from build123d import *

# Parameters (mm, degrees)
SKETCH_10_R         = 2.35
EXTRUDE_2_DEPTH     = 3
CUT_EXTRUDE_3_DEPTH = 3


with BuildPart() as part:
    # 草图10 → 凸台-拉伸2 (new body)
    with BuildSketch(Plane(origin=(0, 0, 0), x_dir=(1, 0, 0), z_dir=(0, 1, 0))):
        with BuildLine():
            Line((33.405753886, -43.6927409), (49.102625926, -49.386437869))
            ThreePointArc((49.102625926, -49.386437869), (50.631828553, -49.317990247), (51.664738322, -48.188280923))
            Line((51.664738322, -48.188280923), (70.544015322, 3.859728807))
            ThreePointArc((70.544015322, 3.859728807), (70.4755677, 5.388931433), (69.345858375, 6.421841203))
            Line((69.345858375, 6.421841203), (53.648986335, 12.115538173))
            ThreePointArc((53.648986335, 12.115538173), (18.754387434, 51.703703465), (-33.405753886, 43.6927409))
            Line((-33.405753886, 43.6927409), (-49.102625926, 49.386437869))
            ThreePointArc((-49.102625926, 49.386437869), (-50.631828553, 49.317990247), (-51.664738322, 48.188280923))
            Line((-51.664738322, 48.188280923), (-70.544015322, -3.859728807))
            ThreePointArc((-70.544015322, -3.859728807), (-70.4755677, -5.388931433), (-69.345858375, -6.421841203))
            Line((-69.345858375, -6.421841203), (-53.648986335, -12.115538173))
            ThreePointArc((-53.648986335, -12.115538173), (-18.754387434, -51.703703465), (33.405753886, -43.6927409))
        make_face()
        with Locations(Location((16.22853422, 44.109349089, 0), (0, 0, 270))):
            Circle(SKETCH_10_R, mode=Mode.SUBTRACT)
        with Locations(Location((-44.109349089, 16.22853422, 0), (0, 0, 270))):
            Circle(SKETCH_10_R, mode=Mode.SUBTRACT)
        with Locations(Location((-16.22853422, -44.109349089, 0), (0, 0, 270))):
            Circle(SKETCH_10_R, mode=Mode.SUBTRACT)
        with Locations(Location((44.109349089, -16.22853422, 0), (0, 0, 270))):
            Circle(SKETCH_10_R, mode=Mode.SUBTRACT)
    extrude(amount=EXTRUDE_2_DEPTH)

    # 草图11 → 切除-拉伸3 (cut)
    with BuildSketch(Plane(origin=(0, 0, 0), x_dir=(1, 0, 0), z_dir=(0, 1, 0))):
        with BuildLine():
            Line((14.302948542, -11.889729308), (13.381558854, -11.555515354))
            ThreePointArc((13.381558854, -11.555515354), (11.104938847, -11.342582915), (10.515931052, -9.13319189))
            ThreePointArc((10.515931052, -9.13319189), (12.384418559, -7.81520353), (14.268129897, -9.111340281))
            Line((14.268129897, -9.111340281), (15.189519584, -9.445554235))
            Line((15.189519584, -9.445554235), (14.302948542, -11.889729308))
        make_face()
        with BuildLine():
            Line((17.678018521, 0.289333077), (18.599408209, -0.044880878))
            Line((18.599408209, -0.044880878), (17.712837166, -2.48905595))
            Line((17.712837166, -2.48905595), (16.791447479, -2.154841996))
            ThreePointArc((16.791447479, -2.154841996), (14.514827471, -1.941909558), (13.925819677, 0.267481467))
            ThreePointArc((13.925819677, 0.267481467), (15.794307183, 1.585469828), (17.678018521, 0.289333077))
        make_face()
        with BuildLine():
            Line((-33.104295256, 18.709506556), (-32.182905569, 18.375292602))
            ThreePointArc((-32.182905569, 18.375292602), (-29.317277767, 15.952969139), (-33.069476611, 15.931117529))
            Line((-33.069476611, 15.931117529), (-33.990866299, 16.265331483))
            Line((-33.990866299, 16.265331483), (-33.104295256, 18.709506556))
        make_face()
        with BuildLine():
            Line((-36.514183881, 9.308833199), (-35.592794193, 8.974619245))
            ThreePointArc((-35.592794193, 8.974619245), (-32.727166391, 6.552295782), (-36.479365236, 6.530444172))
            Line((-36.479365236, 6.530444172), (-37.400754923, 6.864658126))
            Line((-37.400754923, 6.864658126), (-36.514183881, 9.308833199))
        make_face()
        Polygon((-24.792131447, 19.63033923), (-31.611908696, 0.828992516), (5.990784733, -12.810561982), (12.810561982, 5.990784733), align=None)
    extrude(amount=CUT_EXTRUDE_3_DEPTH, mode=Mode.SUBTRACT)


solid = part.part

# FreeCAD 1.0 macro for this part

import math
import FreeCAD as App
import Part
import Sketcher

V = App.Vector

doc = App.newDocument("Part")
params = doc.addObject("Spreadsheet::Sheet", "Params")
for row, (alias, value) in enumerate([
    ("sketch1_radius", "2 mm"),
    ("sketch1_radius2", "55 mm"),
    ("sketch1_diameter", "4.7 mm"),
    ("pad1_length", "3 mm"),
    ("sketch2_radius", "2 mm"),
    ("sketch2_length", "20 mm"),
    ("sketch2_length2", "40 mm"),
    ("sketch2_length3", "2.6 mm"),
    ("pocket1_length", "3 mm"),
], start=1):
    params.set(f"A{row}", alias)
    params.set(f"B{row}", "=" + value)
    params.setAlias(f"B{row}", alias)

body = doc.addObject("PartDesign::Body", "Body")

sketch1 = body.newObject("Sketcher::SketchObject", "Sketch")
sketch1.AttachmentSupport = (doc.getObject("XZ_Plane"), [""])
sketch1.MapMode = "FlatFace"
sketch1.addGeometry(Part.LineSegment(V(33.4, 43.7, 0), V(49.1, 49.4, 0)), False)
sketch1.addGeometry(Part.ArcOfCircle(Part.Circle(V(49.8, 47.5, 0), V(0, 0, 1), 2), math.radians(20), math.radians(110)), False)
sketch1.addGeometry(Part.LineSegment(V(51.7, 48.2, 0), V(70.5, -3.9, 0)), False)
sketch1.addGeometry(Part.ArcOfCircle(Part.Circle(V(68.7, -4.5, 0), V(0, 0, 1), 2), math.radians(-70), math.radians(20)), False)
sketch1.addGeometry(Part.LineSegment(V(69.3, -6.4, 0), V(53.6, -12.1, 0)), False)
sketch1.addGeometry(Part.ArcOfCircle(Part.Circle(V(0, 0, 0), V(0, 0, 1), 55), math.radians(-127), math.radians(-13)), False)
sketch1.addGeometry(Part.LineSegment(V(-33.4, -43.7, 0), V(-49.1, -49.4, 0)), False)
sketch1.addGeometry(Part.ArcOfCircle(Part.Circle(V(-49.8, -47.5, 0), V(0, 0, 1), 2), math.radians(-160), math.radians(-70)), False)
sketch1.addGeometry(Part.LineSegment(V(-51.7, -48.2, 0), V(-70.5, 3.9, 0)), False)
sketch1.addGeometry(Part.ArcOfCircle(Part.Circle(V(-68.7, 4.5, 0), V(0, 0, 1), 2), math.radians(110), math.radians(200)), False)
sketch1.addGeometry(Part.LineSegment(V(-69.3, 6.4, 0), V(-53.6, 12.1, 0)), False)
sketch1.addGeometry(Part.ArcOfCircle(Part.Circle(V(0, 0, 0), V(0, 0, 1), 55), math.radians(53), math.radians(167)), False)
sketch1.addGeometry(Part.Circle(V(-16.2, 44.1, 0), V(0, 0, 1), 2.4), False)
sketch1.addGeometry(Part.Circle(V(44.1, 16.2, 0), V(0, 0, 1), 2.4), False)
sketch1.addGeometry(Part.Circle(V(-44.1, -16.2, 0), V(0, 0, 1), 2.4), False)
sketch1.addGeometry(Part.Circle(V(16.2, -44.1, 0), V(0, 0, 1), 2.4), False)
sketch1.addConstraint(Sketcher.Constraint("Tangent", 0, 2, 1, 2))
sketch1.addConstraint(Sketcher.Constraint("Tangent", 1, 1, 2, 1))
sketch1.addConstraint(Sketcher.Constraint("Tangent", 2, 2, 3, 2))
sketch1.addConstraint(Sketcher.Constraint("Tangent", 3, 1, 4, 1))
sketch1.addConstraint(Sketcher.Constraint("Coincident", 4, 2, 5, 2))
sketch1.addConstraint(Sketcher.Constraint("Coincident", 5, 1, 6, 1))
sketch1.addConstraint(Sketcher.Constraint("Tangent", 6, 2, 7, 2))
sketch1.addConstraint(Sketcher.Constraint("Tangent", 7, 1, 8, 1))
sketch1.addConstraint(Sketcher.Constraint("Tangent", 8, 2, 9, 2))
sketch1.addConstraint(Sketcher.Constraint("Tangent", 9, 1, 10, 1))
sketch1.addConstraint(Sketcher.Constraint("Coincident", 10, 2, 11, 2))
sketch1.addConstraint(Sketcher.Constraint("Coincident", 11, 1, 0, 1))
sketch1.addConstraint(Sketcher.Constraint("Coincident", 5, 3, -1, 1))
sketch1.addConstraint(Sketcher.Constraint("Coincident", 11, 3, -1, 1))
sketch1.addConstraint(Sketcher.Constraint("Equal", 1, 3))
sketch1.addConstraint(Sketcher.Constraint("Equal", 3, 7))
sketch1.addConstraint(Sketcher.Constraint("Equal", 7, 9))
sketch1.addConstraint(Sketcher.Constraint("Equal", 5, 11))
sketch1.addConstraint(Sketcher.Constraint("Equal", 12, 13))
sketch1.addConstraint(Sketcher.Constraint("Equal", 13, 14))
sketch1.addConstraint(Sketcher.Constraint("Equal", 14, 15))
sketch1.addConstraint(Sketcher.Constraint("Symmetric", 1, 3, 7, 3, -1, 1))
sketch1.addConstraint(Sketcher.Constraint("Symmetric", 3, 3, 9, 3, -1, 1))
sketch1.addConstraint(Sketcher.Constraint("Symmetric", 13, 3, 14, 3, -1, 1))
sketch1.addConstraint(Sketcher.Constraint("Symmetric", 12, 3, 15, 3, -1, 1))
sketch1.addConstraint(Sketcher.Constraint("Perpendicular", 0, 2))
sketch1.addConstraint(Sketcher.Constraint("Perpendicular", 2, 4))
sketch1.addConstraint(Sketcher.Constraint("Parallel", 4, 6))
sketch1.addConstraint(Sketcher.Constraint("Perpendicular", 8, 10))
sketch1.addConstraint(Sketcher.Constraint("Equal", 0, 4))
sketch1.addConstraint(Sketcher.Constraint("Radius", 1, 2.0))
sketch1.addConstraint(Sketcher.Constraint("Radius", 5, 55.0))
sketch1.addConstraint(Sketcher.Constraint("Diameter", 12, 4.7))
sketch1.addConstraint(Sketcher.Constraint("DistanceX", -1, 1, 3, 3, 68.663881))
sketch1.addConstraint(Sketcher.Constraint("DistanceY", -1, 1, 12, 3, 44.109349))
sketch1.addConstraint(Sketcher.Constraint("DistanceX", -1, 1, 13, 3, 44.109349))
sketch1.addConstraint(Sketcher.Constraint("DistanceX", -1, 1, 1, 1, 51.664738))
sketch1.addConstraint(Sketcher.Constraint("DistanceY", -1, 1, 1, 1, 48.188281))
sketch1.addConstraint(Sketcher.Constraint("DistanceX", 7, 3, 12, 3, 33.556069))
sketch1.addConstraint(Sketcher.Constraint("DistanceY", 13, 3, 1, 3, 31.277769))
sketch1.setExpression("Constraints[30]", "Params.sketch1_radius")
sketch1.setExpression("Constraints[31]", "Params.sketch1_radius2")
sketch1.setExpression("Constraints[32]", "Params.sketch1_diameter")
pad1 = body.newObject("PartDesign::Pad", "Pad")
pad1.Profile = sketch1
pad1.setExpression("Length", "Params.pad1_length")
pad1.Reversed = True

sketch2 = body.newObject("Sketcher::SketchObject", "Sketch001")
sketch2.AttachmentSupport = (doc.getObject("XZ_Plane"), [""])
sketch2.MapMode = "FlatFace"
sketch2.addGeometry(Part.LineSegment(V(13.4, 11.6, 0), V(14.3, 11.9, 0)), False)
sketch2.addGeometry(Part.LineSegment(V(14.3, 11.9, 0), V(15.2, 9.4, 0)), False)
sketch2.addGeometry(Part.LineSegment(V(15.2, 9.4, 0), V(14.3, 9.1, 0)), False)
sketch2.addGeometry(Part.ArcOfCircle(Part.Circle(V(12.4, 9.8, 0), V(0, 0, 1), 2), math.radians(-160), math.radians(-21)), False)
sketch2.addGeometry(Part.ArcOfCircle(Part.Circle(V(12.4, 9.8, 0), V(0, 0, 1), 2), math.radians(60), math.radians(200)), False)
sketch2.addGeometry(Part.LineSegment(V(18.6, 0, 0), V(17.7, -0.3, 0)), False)
sketch2.addGeometry(Part.ArcOfCircle(Part.Circle(V(15.8, 0.4, 0), V(0, 0, 1), 2), math.radians(-160), math.radians(-21)), False)
sketch2.addGeometry(Part.ArcOfCircle(Part.Circle(V(15.8, 0.4, 0), V(0, 0, 1), 2), math.radians(60), math.radians(200)), False)
sketch2.addGeometry(Part.LineSegment(V(16.8, 2.2, 0), V(17.7, 2.5, 0)), False)
sketch2.addGeometry(Part.LineSegment(V(17.7, 2.5, 0), V(18.6, 0, 0)), False)
sketch2.addGeometry(Part.LineSegment(V(-32.2, -18.4, 0), V(-33.1, -18.7, 0)), False)
sketch2.addGeometry(Part.LineSegment(V(-33.1, -18.7, 0), V(-34, -16.3, 0)), False)
sketch2.addGeometry(Part.LineSegment(V(-34, -16.3, 0), V(-33.1, -15.9, 0)), False)
sketch2.addGeometry(Part.ArcOfCircle(Part.Circle(V(-31.2, -16.6, 0), V(0, 0, 1), 2), math.radians(-120), math.radians(159)), False)
sketch2.addGeometry(Part.LineSegment(V(-35.6, -9, 0), V(-36.5, -9.3, 0)), False)
sketch2.addGeometry(Part.LineSegment(V(-36.5, -9.3, 0), V(-37.4, -6.9, 0)), False)
sketch2.addGeometry(Part.LineSegment(V(-37.4, -6.9, 0), V(-36.5, -6.5, 0)), False)
sketch2.addGeometry(Part.ArcOfCircle(Part.Circle(V(-34.6, -7.2, 0), V(0, 0, 1), 2), math.radians(-120), math.radians(159)), False)
sketch2.addGeometry(Part.LineSegment(V(-24.8, -19.6, 0), V(-31.6, -0.8, 0)), False)
sketch2.addGeometry(Part.LineSegment(V(-31.6, -0.8, 0), V(6, 12.8, 0)), False)
sketch2.addGeometry(Part.LineSegment(V(6, 12.8, 0), V(12.8, -6, 0)), False)
sketch2.addGeometry(Part.LineSegment(V(12.8, -6, 0), V(-24.8, -19.6, 0)), False)
sketch2.addConstraint(Sketcher.Constraint("Coincident", 0, 2, 1, 1))
sketch2.addConstraint(Sketcher.Constraint("Coincident", 1, 2, 2, 1))
sketch2.addConstraint(Sketcher.Constraint("Coincident", 2, 2, 3, 2))
sketch2.addConstraint(Sketcher.Constraint("Tangent", 3, 1, 4, 2))
sketch2.addConstraint(Sketcher.Constraint("Coincident", 4, 1, 0, 1))
sketch2.addConstraint(Sketcher.Constraint("Coincident", 5, 2, 6, 2))
sketch2.addConstraint(Sketcher.Constraint("Tangent", 6, 1, 7, 2))
sketch2.addConstraint(Sketcher.Constraint("Coincident", 7, 1, 8, 1))
sketch2.addConstraint(Sketcher.Constraint("Coincident", 8, 2, 9, 1))
sketch2.addConstraint(Sketcher.Constraint("Coincident", 9, 2, 5, 1))
sketch2.addConstraint(Sketcher.Constraint("Coincident", 10, 2, 11, 1))
sketch2.addConstraint(Sketcher.Constraint("Coincident", 11, 2, 12, 1))
sketch2.addConstraint(Sketcher.Constraint("Coincident", 12, 2, 13, 2))
sketch2.addConstraint(Sketcher.Constraint("Coincident", 13, 1, 10, 1))
sketch2.addConstraint(Sketcher.Constraint("Coincident", 14, 2, 15, 1))
sketch2.addConstraint(Sketcher.Constraint("Coincident", 15, 2, 16, 1))
sketch2.addConstraint(Sketcher.Constraint("Coincident", 16, 2, 17, 2))
sketch2.addConstraint(Sketcher.Constraint("Coincident", 17, 1, 14, 1))
sketch2.addConstraint(Sketcher.Constraint("Coincident", 18, 2, 19, 1))
sketch2.addConstraint(Sketcher.Constraint("Coincident", 19, 2, 20, 1))
sketch2.addConstraint(Sketcher.Constraint("Coincident", 20, 2, 21, 1))
sketch2.addConstraint(Sketcher.Constraint("Coincident", 21, 2, 18, 1))
sketch2.addConstraint(Sketcher.Constraint("Equal", 3, 4))
sketch2.addConstraint(Sketcher.Constraint("Equal", 4, 6))
sketch2.addConstraint(Sketcher.Constraint("Equal", 6, 7))
sketch2.addConstraint(Sketcher.Constraint("Equal", 7, 13))
sketch2.addConstraint(Sketcher.Constraint("Equal", 13, 17))
sketch2.addConstraint(Sketcher.Constraint("Perpendicular", 0, 1))
sketch2.addConstraint(Sketcher.Constraint("Perpendicular", 1, 2))
sketch2.addConstraint(Sketcher.Constraint("Parallel", 2, 5))
sketch2.addConstraint(Sketcher.Constraint("Parallel", 5, 8))
sketch2.addConstraint(Sketcher.Constraint("Perpendicular", 8, 9))
sketch2.addConstraint(Sketcher.Constraint("Perpendicular", 9, 10))
sketch2.addConstraint(Sketcher.Constraint("Perpendicular", 10, 11))
sketch2.addConstraint(Sketcher.Constraint("Perpendicular", 11, 12))
sketch2.addConstraint(Sketcher.Constraint("Parallel", 12, 14))
sketch2.addConstraint(Sketcher.Constraint("Perpendicular", 14, 15))
sketch2.addConstraint(Sketcher.Constraint("Perpendicular", 15, 16))
sketch2.addConstraint(Sketcher.Constraint("Perpendicular", 16, 18))
sketch2.addConstraint(Sketcher.Constraint("Perpendicular", 18, 19))
sketch2.addConstraint(Sketcher.Constraint("Perpendicular", 19, 20))
sketch2.addConstraint(Sketcher.Constraint("Perpendicular", 20, 21))
sketch2.addConstraint(Sketcher.Constraint("Equal", 0, 2))
sketch2.addConstraint(Sketcher.Constraint("Equal", 2, 5))
sketch2.addConstraint(Sketcher.Constraint("Equal", 5, 8))
sketch2.addConstraint(Sketcher.Constraint("Equal", 1, 9))
sketch2.addConstraint(Sketcher.Constraint("Equal", 8, 10))
sketch2.addConstraint(Sketcher.Constraint("Equal", 9, 11))
sketch2.addConstraint(Sketcher.Constraint("Equal", 10, 12))
sketch2.addConstraint(Sketcher.Constraint("Equal", 12, 14))
sketch2.addConstraint(Sketcher.Constraint("Equal", 11, 15))
sketch2.addConstraint(Sketcher.Constraint("Equal", 14, 16))
sketch2.addConstraint(Sketcher.Constraint("Radius", 3, 2.0))
sketch2.addConstraint(Sketcher.Constraint("Distance", 18, 20.0))
sketch2.addConstraint(Sketcher.Constraint("Distance", 19, 40.0))
sketch2.addConstraint(Sketcher.Constraint("Distance", 1, 2.6))
sketch2.addConstraint(Sketcher.Constraint("DistanceX", 17, 3, -1, 1, 34.607301))
sketch2.addConstraint(Sketcher.Constraint("DistanceX", 3, 1, 2, 2, 3.752199))
sketch2.addConstraint(Sketcher.Constraint("DistanceX", 1, 2, 5, 2, 2.488499))
sketch2.addConstraint(Sketcher.Constraint("DistanceX", 6, 1, 5, 2, 3.752199))
sketch2.addConstraint(Sketcher.Constraint("DistanceY", 7, 1, 2, 2, 6.956498))
sketch2.addConstraint(Sketcher.Constraint("DistanceY", 10, 2, 3, 1, 27.842698))
sketch2.addConstraint(Sketcher.Constraint("DistanceY", 11, 2, 14, 2, 6.956498))
sketch2.addConstraint(Sketcher.Constraint("DistanceX", 16, 2, 11, 2, 2.488499))
sketch2.addConstraint(Sketcher.Constraint("Distance", 0, 0.980132))
sketch2.addConstraint(Sketcher.Constraint("DistanceY", -1, 1, 3, 3, 9.81517))
sketch2.addConstraint(Sketcher.Constraint("DistanceX", -1, 1, 0, 2, 14.302949))
sketch2.addConstraint(Sketcher.Constraint("DistanceY", -1, 1, 0, 2, 11.889729))
sketch2.addConstraint(Sketcher.Constraint("DistanceX", 18, 2, -1, 1, 31.611909))
sketch2.addConstraint(Sketcher.Constraint("DistanceY", -1, 1, 19, 2, 12.810562))
sketch2.setExpression("Constraints[52]", "Params.sketch2_radius")
sketch2.setExpression("Constraints[53]", "Params.sketch2_length")
sketch2.setExpression("Constraints[54]", "Params.sketch2_length2")
sketch2.setExpression("Constraints[55]", "Params.sketch2_length3")
pocket1 = body.newObject("PartDesign::Pocket", "Pocket")
pocket1.Profile = sketch2
pocket1.setExpression("Length", "Params.pocket1_length")

doc.recompute()
